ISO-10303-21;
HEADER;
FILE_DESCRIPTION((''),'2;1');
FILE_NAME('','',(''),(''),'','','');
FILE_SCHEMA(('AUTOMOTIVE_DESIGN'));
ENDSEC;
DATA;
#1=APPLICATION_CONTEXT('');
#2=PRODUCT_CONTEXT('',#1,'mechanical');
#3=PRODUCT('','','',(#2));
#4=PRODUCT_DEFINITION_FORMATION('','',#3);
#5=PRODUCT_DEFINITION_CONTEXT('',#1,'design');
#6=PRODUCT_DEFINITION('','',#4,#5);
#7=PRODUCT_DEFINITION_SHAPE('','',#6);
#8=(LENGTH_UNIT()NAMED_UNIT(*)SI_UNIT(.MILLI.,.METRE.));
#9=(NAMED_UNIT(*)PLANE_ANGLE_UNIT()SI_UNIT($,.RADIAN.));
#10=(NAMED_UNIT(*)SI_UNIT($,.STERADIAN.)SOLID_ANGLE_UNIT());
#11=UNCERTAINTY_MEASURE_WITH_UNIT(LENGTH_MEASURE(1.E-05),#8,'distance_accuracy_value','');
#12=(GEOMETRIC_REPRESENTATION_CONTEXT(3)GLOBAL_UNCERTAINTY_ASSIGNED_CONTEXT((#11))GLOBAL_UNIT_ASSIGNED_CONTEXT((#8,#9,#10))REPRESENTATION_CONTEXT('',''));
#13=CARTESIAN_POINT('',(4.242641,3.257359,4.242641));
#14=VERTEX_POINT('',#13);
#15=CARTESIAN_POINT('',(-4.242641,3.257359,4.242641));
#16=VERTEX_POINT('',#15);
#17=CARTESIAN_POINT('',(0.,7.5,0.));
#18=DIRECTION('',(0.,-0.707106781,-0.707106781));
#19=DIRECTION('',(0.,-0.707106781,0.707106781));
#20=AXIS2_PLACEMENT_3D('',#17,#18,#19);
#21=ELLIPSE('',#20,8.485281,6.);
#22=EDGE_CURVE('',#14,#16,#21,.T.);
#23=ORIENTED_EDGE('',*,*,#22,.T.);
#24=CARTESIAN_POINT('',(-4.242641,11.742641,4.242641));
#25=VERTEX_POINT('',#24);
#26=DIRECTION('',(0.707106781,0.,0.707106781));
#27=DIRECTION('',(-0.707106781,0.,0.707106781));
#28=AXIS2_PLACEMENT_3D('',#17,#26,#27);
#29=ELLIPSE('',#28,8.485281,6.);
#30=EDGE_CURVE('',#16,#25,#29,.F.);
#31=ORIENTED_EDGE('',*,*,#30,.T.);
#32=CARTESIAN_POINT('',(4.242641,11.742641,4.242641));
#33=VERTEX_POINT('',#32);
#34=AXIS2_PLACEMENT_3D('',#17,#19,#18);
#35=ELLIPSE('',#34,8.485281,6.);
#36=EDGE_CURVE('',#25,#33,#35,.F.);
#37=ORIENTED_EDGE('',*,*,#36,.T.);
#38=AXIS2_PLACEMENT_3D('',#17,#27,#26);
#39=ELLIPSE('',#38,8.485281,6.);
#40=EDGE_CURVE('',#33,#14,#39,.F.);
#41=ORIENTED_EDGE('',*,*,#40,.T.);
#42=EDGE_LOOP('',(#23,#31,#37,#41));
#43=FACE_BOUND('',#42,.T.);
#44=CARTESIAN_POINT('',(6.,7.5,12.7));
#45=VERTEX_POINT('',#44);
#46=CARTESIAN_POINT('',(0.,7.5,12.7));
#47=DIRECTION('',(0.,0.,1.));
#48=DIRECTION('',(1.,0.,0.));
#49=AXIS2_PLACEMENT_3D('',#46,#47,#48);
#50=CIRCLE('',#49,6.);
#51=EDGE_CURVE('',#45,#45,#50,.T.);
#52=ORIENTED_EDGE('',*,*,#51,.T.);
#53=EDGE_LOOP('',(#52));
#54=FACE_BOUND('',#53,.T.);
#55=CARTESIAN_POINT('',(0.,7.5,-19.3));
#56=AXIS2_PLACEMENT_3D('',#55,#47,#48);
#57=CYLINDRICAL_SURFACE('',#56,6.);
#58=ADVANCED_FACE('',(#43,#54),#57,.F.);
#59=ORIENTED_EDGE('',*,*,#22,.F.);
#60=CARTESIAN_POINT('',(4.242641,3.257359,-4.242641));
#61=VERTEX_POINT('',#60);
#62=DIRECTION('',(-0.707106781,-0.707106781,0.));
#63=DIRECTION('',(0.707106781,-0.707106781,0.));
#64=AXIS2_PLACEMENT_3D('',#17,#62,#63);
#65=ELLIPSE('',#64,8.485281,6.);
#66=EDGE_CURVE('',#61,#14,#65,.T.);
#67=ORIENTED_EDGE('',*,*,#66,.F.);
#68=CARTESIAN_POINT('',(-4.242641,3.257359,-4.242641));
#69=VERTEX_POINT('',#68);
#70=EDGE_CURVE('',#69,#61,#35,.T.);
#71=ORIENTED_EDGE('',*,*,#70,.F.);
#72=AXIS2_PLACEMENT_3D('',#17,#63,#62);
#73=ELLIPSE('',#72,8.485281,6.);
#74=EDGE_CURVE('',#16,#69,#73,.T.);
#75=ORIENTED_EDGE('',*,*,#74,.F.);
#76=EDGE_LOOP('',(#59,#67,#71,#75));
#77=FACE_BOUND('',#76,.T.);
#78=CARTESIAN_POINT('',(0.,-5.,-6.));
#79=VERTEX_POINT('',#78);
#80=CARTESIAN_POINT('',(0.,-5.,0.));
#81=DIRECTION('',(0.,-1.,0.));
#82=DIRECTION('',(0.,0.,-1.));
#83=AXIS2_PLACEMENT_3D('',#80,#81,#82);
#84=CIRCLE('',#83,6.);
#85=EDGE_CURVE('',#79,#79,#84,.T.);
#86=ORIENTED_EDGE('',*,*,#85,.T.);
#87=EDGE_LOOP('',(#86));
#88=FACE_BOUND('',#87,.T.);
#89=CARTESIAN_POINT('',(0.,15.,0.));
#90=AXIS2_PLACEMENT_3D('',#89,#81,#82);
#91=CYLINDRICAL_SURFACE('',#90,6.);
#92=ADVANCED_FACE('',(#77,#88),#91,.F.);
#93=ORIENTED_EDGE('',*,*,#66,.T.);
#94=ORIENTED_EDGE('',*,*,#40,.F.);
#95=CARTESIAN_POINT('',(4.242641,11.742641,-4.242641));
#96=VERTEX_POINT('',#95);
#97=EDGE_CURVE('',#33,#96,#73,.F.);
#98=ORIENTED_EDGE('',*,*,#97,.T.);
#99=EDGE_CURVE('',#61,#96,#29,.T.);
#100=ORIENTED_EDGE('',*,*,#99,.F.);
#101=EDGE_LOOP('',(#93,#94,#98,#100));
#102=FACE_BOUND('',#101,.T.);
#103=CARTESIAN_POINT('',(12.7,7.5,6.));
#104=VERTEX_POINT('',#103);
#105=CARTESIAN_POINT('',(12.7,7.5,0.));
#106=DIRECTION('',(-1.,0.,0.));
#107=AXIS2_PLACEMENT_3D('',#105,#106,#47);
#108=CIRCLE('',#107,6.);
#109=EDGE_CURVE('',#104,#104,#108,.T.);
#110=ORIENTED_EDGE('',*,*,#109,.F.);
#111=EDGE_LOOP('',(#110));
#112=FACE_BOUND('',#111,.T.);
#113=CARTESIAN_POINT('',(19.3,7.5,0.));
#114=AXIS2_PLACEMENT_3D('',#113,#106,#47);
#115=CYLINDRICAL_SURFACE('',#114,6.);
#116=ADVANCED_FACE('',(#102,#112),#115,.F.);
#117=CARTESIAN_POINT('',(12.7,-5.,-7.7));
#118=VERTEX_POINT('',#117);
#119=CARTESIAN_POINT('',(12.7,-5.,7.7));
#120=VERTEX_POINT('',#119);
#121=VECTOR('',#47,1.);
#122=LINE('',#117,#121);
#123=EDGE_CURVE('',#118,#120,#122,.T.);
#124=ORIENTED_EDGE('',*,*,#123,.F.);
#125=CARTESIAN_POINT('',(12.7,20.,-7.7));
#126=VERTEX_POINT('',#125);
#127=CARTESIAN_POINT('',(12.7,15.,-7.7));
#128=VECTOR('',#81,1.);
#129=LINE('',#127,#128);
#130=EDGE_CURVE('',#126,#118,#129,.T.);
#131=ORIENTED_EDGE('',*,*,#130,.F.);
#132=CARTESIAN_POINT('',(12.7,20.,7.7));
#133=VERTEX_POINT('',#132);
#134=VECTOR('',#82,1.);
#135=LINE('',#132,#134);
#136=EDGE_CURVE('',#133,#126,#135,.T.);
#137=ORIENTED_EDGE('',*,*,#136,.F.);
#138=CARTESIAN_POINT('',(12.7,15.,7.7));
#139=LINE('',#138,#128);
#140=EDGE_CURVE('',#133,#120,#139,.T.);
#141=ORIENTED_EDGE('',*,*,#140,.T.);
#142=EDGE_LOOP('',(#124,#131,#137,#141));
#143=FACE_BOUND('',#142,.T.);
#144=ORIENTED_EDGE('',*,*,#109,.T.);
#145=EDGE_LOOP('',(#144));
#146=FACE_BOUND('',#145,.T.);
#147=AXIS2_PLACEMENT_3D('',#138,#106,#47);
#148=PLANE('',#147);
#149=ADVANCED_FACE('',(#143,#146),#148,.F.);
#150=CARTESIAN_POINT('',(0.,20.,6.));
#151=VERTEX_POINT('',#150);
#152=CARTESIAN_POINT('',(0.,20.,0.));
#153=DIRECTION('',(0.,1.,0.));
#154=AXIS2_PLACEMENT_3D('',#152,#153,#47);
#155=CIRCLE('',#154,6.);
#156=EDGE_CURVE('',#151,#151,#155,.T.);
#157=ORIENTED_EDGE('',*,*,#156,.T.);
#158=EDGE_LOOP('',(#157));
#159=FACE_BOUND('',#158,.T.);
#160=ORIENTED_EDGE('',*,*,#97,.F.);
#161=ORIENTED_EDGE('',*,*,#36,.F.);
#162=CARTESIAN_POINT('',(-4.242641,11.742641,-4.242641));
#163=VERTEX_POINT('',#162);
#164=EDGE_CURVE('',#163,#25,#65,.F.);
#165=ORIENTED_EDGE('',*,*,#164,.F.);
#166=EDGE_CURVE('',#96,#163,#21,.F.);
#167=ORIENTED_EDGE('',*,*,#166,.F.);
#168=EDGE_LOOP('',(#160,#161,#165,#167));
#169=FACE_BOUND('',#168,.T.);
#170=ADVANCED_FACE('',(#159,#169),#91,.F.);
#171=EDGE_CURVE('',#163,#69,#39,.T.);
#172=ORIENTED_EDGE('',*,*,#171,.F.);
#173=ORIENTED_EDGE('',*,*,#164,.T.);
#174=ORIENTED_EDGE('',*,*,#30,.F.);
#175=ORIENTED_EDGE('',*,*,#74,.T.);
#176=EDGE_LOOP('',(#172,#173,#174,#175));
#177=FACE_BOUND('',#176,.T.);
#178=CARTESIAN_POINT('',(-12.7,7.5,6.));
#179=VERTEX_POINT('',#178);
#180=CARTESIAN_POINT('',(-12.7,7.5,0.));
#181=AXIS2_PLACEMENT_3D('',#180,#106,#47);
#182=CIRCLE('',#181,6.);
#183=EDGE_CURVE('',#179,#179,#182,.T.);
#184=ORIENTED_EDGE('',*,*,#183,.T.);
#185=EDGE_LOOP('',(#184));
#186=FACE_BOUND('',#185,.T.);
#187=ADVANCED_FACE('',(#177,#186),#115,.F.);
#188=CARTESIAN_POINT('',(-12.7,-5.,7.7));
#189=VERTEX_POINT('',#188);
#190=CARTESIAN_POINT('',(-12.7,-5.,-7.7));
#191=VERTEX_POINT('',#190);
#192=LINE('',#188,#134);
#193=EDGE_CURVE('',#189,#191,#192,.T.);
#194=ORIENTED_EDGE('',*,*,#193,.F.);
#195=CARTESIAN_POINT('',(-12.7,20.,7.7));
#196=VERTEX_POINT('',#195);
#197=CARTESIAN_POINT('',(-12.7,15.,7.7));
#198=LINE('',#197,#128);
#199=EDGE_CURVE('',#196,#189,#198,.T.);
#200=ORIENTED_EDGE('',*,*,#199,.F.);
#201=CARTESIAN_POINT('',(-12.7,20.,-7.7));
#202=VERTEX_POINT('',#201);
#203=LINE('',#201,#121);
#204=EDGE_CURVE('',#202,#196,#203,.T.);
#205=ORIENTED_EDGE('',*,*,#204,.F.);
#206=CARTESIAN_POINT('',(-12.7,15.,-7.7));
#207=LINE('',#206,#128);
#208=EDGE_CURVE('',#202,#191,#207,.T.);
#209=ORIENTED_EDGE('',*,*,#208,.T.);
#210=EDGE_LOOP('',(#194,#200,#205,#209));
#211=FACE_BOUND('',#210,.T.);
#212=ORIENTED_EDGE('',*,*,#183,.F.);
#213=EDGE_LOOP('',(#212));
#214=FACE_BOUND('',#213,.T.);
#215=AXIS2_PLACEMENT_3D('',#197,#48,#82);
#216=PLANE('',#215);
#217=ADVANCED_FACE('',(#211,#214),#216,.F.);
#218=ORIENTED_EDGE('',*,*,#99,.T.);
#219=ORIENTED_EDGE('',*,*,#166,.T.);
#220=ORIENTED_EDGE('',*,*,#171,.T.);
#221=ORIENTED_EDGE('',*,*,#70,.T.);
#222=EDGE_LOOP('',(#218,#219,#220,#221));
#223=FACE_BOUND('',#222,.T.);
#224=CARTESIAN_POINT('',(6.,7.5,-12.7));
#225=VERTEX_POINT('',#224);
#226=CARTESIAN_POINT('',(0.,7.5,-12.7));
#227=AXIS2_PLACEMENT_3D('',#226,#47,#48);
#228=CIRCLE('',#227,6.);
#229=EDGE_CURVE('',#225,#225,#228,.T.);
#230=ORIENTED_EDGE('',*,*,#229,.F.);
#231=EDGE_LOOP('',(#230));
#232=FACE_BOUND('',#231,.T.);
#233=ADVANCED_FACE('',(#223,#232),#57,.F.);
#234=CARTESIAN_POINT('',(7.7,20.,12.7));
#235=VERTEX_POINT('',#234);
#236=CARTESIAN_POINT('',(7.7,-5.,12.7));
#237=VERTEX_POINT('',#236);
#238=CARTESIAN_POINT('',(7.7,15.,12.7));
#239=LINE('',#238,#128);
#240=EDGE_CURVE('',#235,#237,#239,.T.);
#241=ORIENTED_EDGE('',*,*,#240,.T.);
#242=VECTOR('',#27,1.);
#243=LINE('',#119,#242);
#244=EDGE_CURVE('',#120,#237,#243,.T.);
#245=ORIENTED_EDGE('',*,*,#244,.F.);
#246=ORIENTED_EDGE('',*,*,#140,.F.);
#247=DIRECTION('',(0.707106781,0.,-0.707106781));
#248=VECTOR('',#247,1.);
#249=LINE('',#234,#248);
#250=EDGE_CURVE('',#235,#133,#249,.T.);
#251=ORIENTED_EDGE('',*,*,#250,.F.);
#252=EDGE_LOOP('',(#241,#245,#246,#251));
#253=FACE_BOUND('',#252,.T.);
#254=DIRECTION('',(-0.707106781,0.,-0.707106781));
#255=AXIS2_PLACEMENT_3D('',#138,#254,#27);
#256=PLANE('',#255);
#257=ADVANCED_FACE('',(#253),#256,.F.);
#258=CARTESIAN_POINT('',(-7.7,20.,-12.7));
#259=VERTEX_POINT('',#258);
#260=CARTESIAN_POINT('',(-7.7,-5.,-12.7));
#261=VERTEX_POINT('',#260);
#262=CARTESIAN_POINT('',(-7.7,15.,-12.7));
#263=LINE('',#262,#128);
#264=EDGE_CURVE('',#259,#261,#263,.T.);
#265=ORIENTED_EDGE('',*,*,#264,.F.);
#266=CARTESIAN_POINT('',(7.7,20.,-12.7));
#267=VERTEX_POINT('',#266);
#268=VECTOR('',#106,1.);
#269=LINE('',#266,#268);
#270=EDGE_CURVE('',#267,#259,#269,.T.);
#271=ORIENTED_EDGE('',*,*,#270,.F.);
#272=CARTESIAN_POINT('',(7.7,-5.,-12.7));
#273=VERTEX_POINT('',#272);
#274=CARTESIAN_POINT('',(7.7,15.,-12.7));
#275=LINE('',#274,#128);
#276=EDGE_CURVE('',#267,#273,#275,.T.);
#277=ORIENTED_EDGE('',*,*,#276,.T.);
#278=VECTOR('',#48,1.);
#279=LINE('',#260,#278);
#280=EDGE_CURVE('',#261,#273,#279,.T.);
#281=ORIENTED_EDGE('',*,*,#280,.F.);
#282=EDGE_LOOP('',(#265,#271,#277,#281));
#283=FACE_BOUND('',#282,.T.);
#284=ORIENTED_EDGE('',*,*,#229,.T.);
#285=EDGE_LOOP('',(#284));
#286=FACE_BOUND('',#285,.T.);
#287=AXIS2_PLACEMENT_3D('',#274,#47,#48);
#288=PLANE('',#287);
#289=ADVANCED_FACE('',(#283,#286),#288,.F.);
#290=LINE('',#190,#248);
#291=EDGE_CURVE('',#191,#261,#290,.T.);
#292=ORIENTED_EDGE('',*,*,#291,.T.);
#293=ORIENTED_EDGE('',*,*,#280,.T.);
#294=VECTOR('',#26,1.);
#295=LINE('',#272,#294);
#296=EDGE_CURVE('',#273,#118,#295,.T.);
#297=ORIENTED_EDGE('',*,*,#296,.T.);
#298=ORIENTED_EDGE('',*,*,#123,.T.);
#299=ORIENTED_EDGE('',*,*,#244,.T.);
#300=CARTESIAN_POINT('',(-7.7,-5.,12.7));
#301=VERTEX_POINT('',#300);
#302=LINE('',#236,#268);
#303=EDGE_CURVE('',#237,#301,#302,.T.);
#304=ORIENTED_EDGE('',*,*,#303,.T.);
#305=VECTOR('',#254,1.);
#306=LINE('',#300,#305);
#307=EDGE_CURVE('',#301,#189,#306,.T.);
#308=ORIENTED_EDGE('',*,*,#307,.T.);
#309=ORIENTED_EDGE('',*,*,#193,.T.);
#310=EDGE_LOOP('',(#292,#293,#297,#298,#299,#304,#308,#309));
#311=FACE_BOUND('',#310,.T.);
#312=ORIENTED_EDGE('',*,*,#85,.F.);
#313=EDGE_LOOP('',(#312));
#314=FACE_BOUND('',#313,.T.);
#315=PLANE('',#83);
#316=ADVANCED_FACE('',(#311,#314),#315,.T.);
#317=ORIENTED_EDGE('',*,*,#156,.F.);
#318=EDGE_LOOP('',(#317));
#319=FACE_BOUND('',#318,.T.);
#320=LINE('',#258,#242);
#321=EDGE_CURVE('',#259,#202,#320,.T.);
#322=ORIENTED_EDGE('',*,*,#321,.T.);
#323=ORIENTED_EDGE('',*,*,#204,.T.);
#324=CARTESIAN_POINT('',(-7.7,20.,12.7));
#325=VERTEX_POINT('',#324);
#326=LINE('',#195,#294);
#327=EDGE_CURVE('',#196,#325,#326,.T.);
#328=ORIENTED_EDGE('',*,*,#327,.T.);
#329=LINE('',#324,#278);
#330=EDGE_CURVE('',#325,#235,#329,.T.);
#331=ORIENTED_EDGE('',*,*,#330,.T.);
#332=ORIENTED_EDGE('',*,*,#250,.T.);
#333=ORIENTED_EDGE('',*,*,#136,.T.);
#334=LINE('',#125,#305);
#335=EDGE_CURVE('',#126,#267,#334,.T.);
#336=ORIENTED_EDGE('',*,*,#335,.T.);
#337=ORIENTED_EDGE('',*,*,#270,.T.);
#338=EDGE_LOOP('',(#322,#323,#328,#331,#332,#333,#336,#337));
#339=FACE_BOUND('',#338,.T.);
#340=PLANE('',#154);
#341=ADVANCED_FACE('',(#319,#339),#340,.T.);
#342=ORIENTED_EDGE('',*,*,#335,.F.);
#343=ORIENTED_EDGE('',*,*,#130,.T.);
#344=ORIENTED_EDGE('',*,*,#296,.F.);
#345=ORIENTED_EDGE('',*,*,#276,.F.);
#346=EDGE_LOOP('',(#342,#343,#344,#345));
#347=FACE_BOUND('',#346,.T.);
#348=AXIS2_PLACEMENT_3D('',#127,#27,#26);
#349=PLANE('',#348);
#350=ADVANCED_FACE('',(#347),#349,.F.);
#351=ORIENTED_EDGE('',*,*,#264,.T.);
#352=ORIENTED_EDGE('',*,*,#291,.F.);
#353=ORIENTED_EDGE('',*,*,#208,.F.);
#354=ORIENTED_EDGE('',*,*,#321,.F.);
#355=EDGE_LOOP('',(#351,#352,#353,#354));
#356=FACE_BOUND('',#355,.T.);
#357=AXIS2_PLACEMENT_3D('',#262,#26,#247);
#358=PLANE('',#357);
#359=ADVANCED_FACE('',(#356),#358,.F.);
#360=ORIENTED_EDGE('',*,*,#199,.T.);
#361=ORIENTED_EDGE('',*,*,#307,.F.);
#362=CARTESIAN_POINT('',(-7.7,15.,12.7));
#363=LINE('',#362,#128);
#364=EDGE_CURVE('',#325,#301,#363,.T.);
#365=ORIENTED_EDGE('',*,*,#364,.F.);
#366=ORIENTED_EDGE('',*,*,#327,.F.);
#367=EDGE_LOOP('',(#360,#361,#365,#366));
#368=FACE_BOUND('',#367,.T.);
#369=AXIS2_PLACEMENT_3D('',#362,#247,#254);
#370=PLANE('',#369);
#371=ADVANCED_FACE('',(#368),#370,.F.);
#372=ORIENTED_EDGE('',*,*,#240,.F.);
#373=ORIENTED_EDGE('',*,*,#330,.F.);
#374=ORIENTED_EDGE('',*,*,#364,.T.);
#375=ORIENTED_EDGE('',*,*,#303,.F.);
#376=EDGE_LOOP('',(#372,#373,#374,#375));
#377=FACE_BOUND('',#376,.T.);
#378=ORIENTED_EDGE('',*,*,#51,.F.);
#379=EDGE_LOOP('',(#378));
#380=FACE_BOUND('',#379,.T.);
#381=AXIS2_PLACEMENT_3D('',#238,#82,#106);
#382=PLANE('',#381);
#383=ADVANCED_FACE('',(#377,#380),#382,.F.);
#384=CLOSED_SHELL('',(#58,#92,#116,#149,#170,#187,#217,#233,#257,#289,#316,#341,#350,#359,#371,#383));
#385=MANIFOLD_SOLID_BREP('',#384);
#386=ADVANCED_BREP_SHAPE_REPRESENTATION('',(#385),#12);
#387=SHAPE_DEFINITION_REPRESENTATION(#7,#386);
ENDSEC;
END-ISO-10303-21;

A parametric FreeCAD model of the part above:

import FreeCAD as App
import Part
import Sketcher
from FreeCAD import Vector
Q = App.Units.Quantity

doc = App.newDocument("Part")
body = doc.addObject("PartDesign::Body", "Body")

sketch1 = doc.addObject("Sketcher::SketchObject", "Sketch")
body.addObject(sketch1)
sketch1.AttachmentSupport = (doc.XZ_Plane, [""])
sketch1.MapMode = "FlatFace"
sketch1.addGeometry([
    Part.LineSegment(Vector(-7.7, -12.7, 0), Vector(-12.7, -7.7, 0)),
    Part.LineSegment(Vector(-12.7, -7.7, 0), Vector(-12.7, 7.7, 0)),
    Part.LineSegment(Vector(-12.7, 7.7, 0), Vector(-7.7, 12.7, 0)),
    Part.LineSegment(Vector(-7.7, 12.7, 0), Vector(7.7, 12.7, 0)),
    Part.LineSegment(Vector(7.7, 12.7, 0), Vector(12.7, 7.7, 0)),
    Part.LineSegment(Vector(12.7, 7.7, 0), Vector(12.7, -7.7, 0)),
    Part.LineSegment(Vector(12.7, -7.7, 0), Vector(7.7, -12.7, 0)),
    Part.LineSegment(Vector(7.7, -12.7, 0), Vector(-7.7, -12.7, 0)),
    Part.Circle(Vector(0, 0, 0), Vector(0, 0, 1), 6),
], False)
sketch1.addConstraint([
    Sketcher.Constraint("Coincident", 0, 2, 1, 1),
    Sketcher.Constraint("Coincident", 1, 2, 2, 1),
    Sketcher.Constraint("Coincident", 2, 2, 3, 1),
    Sketcher.Constraint("Coincident", 3, 2, 4, 1),
    Sketcher.Constraint("Coincident", 4, 2, 5, 1),
    Sketcher.Constraint("Coincident", 5, 2, 6, 1),
    Sketcher.Constraint("Coincident", 6, 2, 7, 1),
    Sketcher.Constraint("Coincident", 7, 2, 0, 1),
    Sketcher.Constraint("Vertical", 1),
    Sketcher.Constraint("Horizontal", 3),
    Sketcher.Constraint("Vertical", 5),
    Sketcher.Constraint("Horizontal", 7),
    Sketcher.Constraint("Coincident", 8, 3, -1, 1),
    Sketcher.Constraint("Symmetric", 0, 2, 4, 2, -1, 1),
    Sketcher.Constraint("Symmetric", 2, 2, 6, 2, -1, 1),
    Sketcher.Constraint("Perpendicular", 0, 2),
    Sketcher.Constraint("Perpendicular", 2, 4),
    Sketcher.Constraint("Perpendicular", 4, 6),
    Sketcher.Constraint("Horizontal", 1, 2, 4, 2),
    Sketcher.Constraint("Vertical", 3, 2, 6, 2),
    Sketcher.Constraint("Equal", 7, 1),
    Sketcher.Constraint("Diameter", 8, Q("12 mm")),
    Sketcher.Constraint("DistanceX", 3, 1, 3, 2, Q("15.4 mm")),
    Sketcher.Constraint("DistanceX", 1, 2, 2, 2, Q("5 mm")),
])
pad1 = doc.addObject("PartDesign::Pad", "Pad")
body.addObject(pad1)
pad1.Profile = sketch1
pad1.Length = 15
pad1.Reversed = True

sketch2 = doc.addObject("Sketcher::SketchObject", "Sketch001")
body.addObject(sketch2)
sketch2.AttachmentSupport = (doc.XY_Plane, [""])
sketch2.MapMode = "FlatFace"
sketch2.AttachmentOffset = App.Placement(Vector(0, 0, 12.7), App.Rotation())
sketch2.addGeometry(Part.Circle(Vector(0, 7.5, 0), Vector(0, 0, 1), 6), False)
sketch2.addConstraint([
    Sketcher.Constraint("PointOnObject", 0, 3, -2),
    Sketcher.Constraint("Diameter", 0, Q("12 mm")),
    Sketcher.Constraint("DistanceY", -1, 1, 0, 3, Q("7.5 mm")),
])
pocket1 = doc.addObject("PartDesign::Pocket", "Pocket")
body.addObject(pocket1)
pocket1.Profile = sketch2
pocket1.Length = 32

sketch3 = doc.addObject("Sketcher::SketchObject", "Sketch002")
body.addObject(sketch3)
sketch3.AttachmentSupport = (doc.YZ_Plane, [""])
sketch3.MapMode = "FlatFace"
sketch3.AttachmentOffset = App.Placement(Vector(0, 0, -12.7), App.Rotation())
sketch3.addGeometry(Part.Circle(Vector(7.5, 0, 0), Vector(0, 0, 1), 6), False)
sketch3.addConstraint([
    Sketcher.Constraint("PointOnObject", 0, 3, -1),
    Sketcher.Constraint("Diameter", 0, Q("12 mm")),
    Sketcher.Constraint("DistanceX", -1, 1, 0, 3, Q("7.5 mm")),
])
pocket2 = doc.addObject("PartDesign::Pocket", "Pocket001")
body.addObject(pocket2)
pocket2.Profile = sketch3
pocket2.Length = 32
pocket2.Reversed = True

sketch4 = doc.addObject("Sketcher::SketchObject", "Sketch003")
body.addObject(sketch4)
sketch4.AttachmentSupport = (doc.XZ_Plane, [""])
sketch4.MapMode = "FlatFace"
sketch4.AttachmentOffset = App.Placement(Vector(0, 0, -15), App.Rotation())
sketch4.addGeometry([
    Part.LineSegment(Vector(7.7, -12.7, 0), Vector(-7.7, -12.7, 0)),
    Part.LineSegment(Vector(-7.7, -12.7, 0), Vector(-12.7, -7.7, 0)),
    Part.LineSegment(Vector(-12.7, -7.7, 0), Vector(-12.7, 7.7, 0)),
    Part.LineSegment(Vector(-12.7, 7.7, 0), Vector(-7.7, 12.7, 0)),
    Part.LineSegment(Vector(-7.7, 12.7, 0), Vector(7.7, 12.7, 0)),
    Part.LineSegment(Vector(7.7, 12.7, 0), Vector(12.7, 7.7, 0)),
    Part.LineSegment(Vector(12.7, 7.7, 0), Vector(12.7, -7.7, 0)),
    Part.LineSegment(Vector(12.7, -7.7, 0), Vector(7.7, -12.7, 0)),
], False)
sketch4.addConstraint([
    Sketcher.Constraint("Coincident", 0, 2, 1, 1),
    Sketcher.Constraint("Coincident", 1, 2, 2, 1),
    Sketcher.Constraint("Coincident", 2, 2, 3, 1),
    Sketcher.Constraint("Coincident", 3, 2, 4, 1),
    Sketcher.Constraint("Coincident", 4, 2, 5, 1),
    Sketcher.Constraint("Coincident", 5, 2, 6, 1),
    Sketcher.Constraint("Coincident", 6, 2, 7, 1),
    Sketcher.Constraint("Coincident", 7, 2, 0, 1),
    Sketcher.Constraint("Horizontal", 0),
    Sketcher.Constraint("Vertical", 2),
    Sketcher.Constraint("Horizontal", 4),
    Sketcher.Constraint("Vertical", 6),
    Sketcher.Constraint("Symmetric", 0, 2, 4, 2, -1, 1),
    Sketcher.Constraint("Symmetric", 1, 2, 5, 2, -1, 1),
    Sketcher.Constraint("Perpendicular", 1, 3),
    Sketcher.Constraint("Perpendicular", 5, 7),
    Sketcher.Constraint("Horizontal", 2, 2, 5, 2),
    Sketcher.Constraint("Horizontal", 1, 2, 6, 2),
    Sketcher.Constraint("Vertical", 0, 2, 3, 2),
    Sketcher.Constraint("Equal", 4, 2),
    Sketcher.Constraint("DistanceX", 0, 2, 0, 1, Q("15.4 mm")),
    Sketcher.Constraint("DistanceX", 1, 2, 0, 2, Q("5 mm")),
])
pad2 = doc.addObject("PartDesign::Pad", "Pad001")
body.addObject(pad2)
pad2.Profile = sketch4
pad2.Length = 5
pad2.Reversed = True

sketch5 = doc.addObject("Sketcher::SketchObject", "Sketch004")
body.addObject(sketch5)
sketch5.AttachmentSupport = (doc.XZ_Plane, [""])
sketch5.MapMode = "FlatFace"
sketch5.addGeometry([
    Part.LineSegment(Vector(-7.7, -12.7, 0), Vector(7.7, -12.7, 0)),
    Part.LineSegment(Vector(7.7, -12.7, 0), Vector(12.7, -7.7, 0)),
    Part.LineSegment(Vector(12.7, -7.7, 0), Vector(12.7, 7.7, 0)),
    Part.LineSegment(Vector(12.7, 7.7, 0), Vector(7.7, 12.7, 0)),
    Part.LineSegment(Vector(7.7, 12.7, 0), Vector(-7.7, 12.7, 0)),
    Part.LineSegment(Vector(-7.7, 12.7, 0), Vector(-12.7, 7.7, 0)),
    Part.LineSegment(Vector(-12.7, 7.7, 0), Vector(-12.7, -7.7, 0)),
    Part.LineSegment(Vector(-12.7, -7.7, 0), Vector(-7.7, -12.7, 0)),
], False)
sketch5.addConstraint([
    Sketcher.Constraint("Coincident", 0, 2, 1, 1),
    Sketcher.Constraint("Coincident", 1, 2, 2, 1),
    Sketcher.Constraint("Coincident", 2, 2, 3, 1),
    Sketcher.Constraint("Coincident", 3, 2, 4, 1),
    Sketcher.Constraint("Coincident", 4, 2, 5, 1),
    Sketcher.Constraint("Coincident", 5, 2, 6, 1),
    Sketcher.Constraint("Coincident", 6, 2, 7, 1),
    Sketcher.Constraint("Coincident", 7, 2, 0, 1),
    Sketcher.Constraint("Horizontal", 0),
    Sketcher.Constraint("Vertical", 2),
    Sketcher.Constraint("Horizontal", 4),
    Sketcher.Constraint("Vertical", 6),
    Sketcher.Constraint("Symmetric", 0, 2, 4, 2, -1, 1),
    Sketcher.Constraint("Symmetric", 1, 2, 5, 2, -1, 1),
    Sketcher.Constraint("Perpendicular", 1, 3),
    Sketcher.Constraint("Perpendicular", 5, 7),
    Sketcher.Constraint("Horizontal", 2, 2, 5, 2),
    Sketcher.Constraint("Horizontal", 1, 2, 6, 2),
    Sketcher.Constraint("Vertical", 0, 2, 3, 2),
    Sketcher.Constraint("Equal", 4, 2),
    Sketcher.Constraint("DistanceX", 0, 1, 0, 2, Q("15.4 mm")),
    Sketcher.Constraint("DistanceX", 0, 2, 1, 2, Q("5 mm")),
])
pad3 = doc.addObject("PartDesign::Pad", "Pad002")
body.addObject(pad3)
pad3.Profile = sketch5
pad3.Length = 5

sketch6 = doc.addObject("Sketcher::SketchObject", "Sketch005")
body.addObject(sketch6)
sketch6.AttachmentSupport = (doc.XZ_Plane, [""])
sketch6.MapMode = "FlatFace"
sketch6.AttachmentOffset = App.Placement(Vector(0, 0, 11), App.Rotation())
sketch6.addGeometry(Part.Circle(Vector(0, 0, 0), Vector(0, 0, 1), 6), False)
sketch6.addConstraint([
    Sketcher.Constraint("Coincident", 0, 3, -1, 1),
    Sketcher.Constraint("Diameter", 0, Q("12 mm")),
])
pocket3 = doc.addObject("PartDesign::Pocket", "Pocket002")
body.addObject(pocket3)
pocket3.Profile = sketch6
pocket3.Length = 31

doc.recompute()
